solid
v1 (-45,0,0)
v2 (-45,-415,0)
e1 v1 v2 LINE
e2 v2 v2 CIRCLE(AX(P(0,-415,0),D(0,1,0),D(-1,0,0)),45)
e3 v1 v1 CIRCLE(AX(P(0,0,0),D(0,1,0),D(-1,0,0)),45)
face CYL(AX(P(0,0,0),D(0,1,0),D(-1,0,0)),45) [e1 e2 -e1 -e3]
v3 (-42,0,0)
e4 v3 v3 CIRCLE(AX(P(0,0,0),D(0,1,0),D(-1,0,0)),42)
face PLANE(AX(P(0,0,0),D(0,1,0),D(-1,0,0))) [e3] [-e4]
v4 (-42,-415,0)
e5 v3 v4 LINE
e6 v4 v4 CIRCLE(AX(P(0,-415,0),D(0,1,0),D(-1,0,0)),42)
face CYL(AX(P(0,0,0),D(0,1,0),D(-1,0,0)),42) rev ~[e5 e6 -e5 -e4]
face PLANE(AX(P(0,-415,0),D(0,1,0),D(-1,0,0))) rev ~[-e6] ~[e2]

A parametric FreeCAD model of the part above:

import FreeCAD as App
import Part
import Sketcher

doc = App.newDocument("Part")
body = doc.addObject("PartDesign::Body", "Body")

# Sketch on XZ plane
sketch1 = doc.addObject("Sketcher::SketchObject", "Sketch")
body.addObject(sketch1)
sketch1.AttachmentSupport = (doc.XZ_Plane, [""])
sketch1.MapMode = "FlatFace"
sketch1.addGeometry(Part.Circle(App.Vector(0, 0, 0), App.Vector(0, 0, 1), 45), False)
sketch1.addGeometry(Part.Circle(App.Vector(0, 0, 0), App.Vector(0, 0, 1), 42), False)
sketch1.addConstraint(Sketcher.Constraint("Coincident", 0, 3, -1, 1))
sketch1.addConstraint(Sketcher.Constraint("Coincident", 1, 3, -1, 1))
sketch1.addConstraint(Sketcher.Constraint("Diameter", 0, 90.0))
sketch1.addConstraint(Sketcher.Constraint("Diameter", 1, 84.0))
pad1 = doc.addObject("PartDesign::Pad", "Pad")
body.addObject(pad1)
pad1.Profile = sketch1
pad1.Length = 415

doc.recompute()
